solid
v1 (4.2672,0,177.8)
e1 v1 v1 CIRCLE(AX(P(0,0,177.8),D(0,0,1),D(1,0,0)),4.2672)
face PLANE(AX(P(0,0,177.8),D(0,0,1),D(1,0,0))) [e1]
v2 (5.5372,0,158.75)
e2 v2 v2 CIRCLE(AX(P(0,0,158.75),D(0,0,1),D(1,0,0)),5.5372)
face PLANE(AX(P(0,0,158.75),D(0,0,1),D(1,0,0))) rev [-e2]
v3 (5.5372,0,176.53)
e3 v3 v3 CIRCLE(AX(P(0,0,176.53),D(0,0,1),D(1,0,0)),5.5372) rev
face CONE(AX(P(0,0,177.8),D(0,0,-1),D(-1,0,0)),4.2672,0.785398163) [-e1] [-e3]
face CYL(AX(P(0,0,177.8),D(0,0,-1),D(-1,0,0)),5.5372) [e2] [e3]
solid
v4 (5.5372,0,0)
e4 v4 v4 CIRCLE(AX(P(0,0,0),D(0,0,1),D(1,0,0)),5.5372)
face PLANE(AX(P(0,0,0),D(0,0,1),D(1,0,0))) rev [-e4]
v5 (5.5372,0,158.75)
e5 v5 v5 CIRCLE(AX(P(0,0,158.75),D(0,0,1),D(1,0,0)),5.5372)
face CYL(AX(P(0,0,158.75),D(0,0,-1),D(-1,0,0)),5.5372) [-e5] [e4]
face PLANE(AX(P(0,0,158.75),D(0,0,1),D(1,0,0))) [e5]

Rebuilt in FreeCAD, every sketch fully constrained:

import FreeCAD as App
import Part
import Sketcher

V = App.Vector
Q = App.Units.Quantity


def edges_at(feature, points):
    """Names of the edges that pass closest to the given points."""
    edges = feature.Shape.Edges
    near = lambda p: min(range(len(edges)), key=lambda i: edges[i].distToShape(Part.Vertex(*p))[0])
    return sorted({f"Edge{near(p) + 1}" for p in points})

doc = App.newDocument("Part")
body = doc.addObject("PartDesign::Body", "Body")

sketch1 = doc.addObject("Sketcher::SketchObject", "Sketch")
body.addObject(sketch1)
sketch1.AttachmentSupport = (doc.XY_Plane, [""])
sketch1.MapMode = "FlatFace"
sketch1.addGeometry(Part.Circle(V(0, 0, 0), V(0, 0, 1), 6), False)
sketch1.addConstraint(Sketcher.Constraint("Coincident", 0, 3, -1, 1))
sketch1.addConstraint(Sketcher.Constraint("Diameter", 0, Q("0.436 in")))
pad1 = doc.addObject("PartDesign::Pad", "Pad")
body.addObject(pad1)
pad1.Profile = sketch1
pad1.Length = Q("6.25 in")
body2 = doc.addObject("PartDesign::Body", "Body001")

sketch2 = doc.addObject("Sketcher::SketchObject", "Sketch001")
body2.addObject(sketch2)
sketch2.AttachmentSupport = (doc.getObject("XY_Plane001"), [""])
sketch2.MapMode = "FlatFace"
sketch2.AttachmentOffset = App.Placement(V(0, 0, 6.25 * 25.4), App.Rotation())
sketch2.addGeometry(Part.Circle(V(0, 0, 0), V(0, 0, 1), 6), False)
sketch2.addConstraint(Sketcher.Constraint("Coincident", 0, 3, -1, 1))
sketch2.addConstraint(Sketcher.Constraint("Diameter", 0, Q("0.436 in")))
pad2 = doc.addObject("PartDesign::Pad", "Pad001")
body2.addObject(pad2)
pad2.Profile = sketch2
pad2.Length = Q("0.75 in")
doc.recompute()

chamfer = doc.addObject("PartDesign::Chamfer", "Chamfer")
body2.addObject(chamfer)
chamfer.Base = (pad2, edges_at(pad2, [(-5.537, 0, 177.8)]))
chamfer.Size = Q("0.05 in")

doc.recompute()
